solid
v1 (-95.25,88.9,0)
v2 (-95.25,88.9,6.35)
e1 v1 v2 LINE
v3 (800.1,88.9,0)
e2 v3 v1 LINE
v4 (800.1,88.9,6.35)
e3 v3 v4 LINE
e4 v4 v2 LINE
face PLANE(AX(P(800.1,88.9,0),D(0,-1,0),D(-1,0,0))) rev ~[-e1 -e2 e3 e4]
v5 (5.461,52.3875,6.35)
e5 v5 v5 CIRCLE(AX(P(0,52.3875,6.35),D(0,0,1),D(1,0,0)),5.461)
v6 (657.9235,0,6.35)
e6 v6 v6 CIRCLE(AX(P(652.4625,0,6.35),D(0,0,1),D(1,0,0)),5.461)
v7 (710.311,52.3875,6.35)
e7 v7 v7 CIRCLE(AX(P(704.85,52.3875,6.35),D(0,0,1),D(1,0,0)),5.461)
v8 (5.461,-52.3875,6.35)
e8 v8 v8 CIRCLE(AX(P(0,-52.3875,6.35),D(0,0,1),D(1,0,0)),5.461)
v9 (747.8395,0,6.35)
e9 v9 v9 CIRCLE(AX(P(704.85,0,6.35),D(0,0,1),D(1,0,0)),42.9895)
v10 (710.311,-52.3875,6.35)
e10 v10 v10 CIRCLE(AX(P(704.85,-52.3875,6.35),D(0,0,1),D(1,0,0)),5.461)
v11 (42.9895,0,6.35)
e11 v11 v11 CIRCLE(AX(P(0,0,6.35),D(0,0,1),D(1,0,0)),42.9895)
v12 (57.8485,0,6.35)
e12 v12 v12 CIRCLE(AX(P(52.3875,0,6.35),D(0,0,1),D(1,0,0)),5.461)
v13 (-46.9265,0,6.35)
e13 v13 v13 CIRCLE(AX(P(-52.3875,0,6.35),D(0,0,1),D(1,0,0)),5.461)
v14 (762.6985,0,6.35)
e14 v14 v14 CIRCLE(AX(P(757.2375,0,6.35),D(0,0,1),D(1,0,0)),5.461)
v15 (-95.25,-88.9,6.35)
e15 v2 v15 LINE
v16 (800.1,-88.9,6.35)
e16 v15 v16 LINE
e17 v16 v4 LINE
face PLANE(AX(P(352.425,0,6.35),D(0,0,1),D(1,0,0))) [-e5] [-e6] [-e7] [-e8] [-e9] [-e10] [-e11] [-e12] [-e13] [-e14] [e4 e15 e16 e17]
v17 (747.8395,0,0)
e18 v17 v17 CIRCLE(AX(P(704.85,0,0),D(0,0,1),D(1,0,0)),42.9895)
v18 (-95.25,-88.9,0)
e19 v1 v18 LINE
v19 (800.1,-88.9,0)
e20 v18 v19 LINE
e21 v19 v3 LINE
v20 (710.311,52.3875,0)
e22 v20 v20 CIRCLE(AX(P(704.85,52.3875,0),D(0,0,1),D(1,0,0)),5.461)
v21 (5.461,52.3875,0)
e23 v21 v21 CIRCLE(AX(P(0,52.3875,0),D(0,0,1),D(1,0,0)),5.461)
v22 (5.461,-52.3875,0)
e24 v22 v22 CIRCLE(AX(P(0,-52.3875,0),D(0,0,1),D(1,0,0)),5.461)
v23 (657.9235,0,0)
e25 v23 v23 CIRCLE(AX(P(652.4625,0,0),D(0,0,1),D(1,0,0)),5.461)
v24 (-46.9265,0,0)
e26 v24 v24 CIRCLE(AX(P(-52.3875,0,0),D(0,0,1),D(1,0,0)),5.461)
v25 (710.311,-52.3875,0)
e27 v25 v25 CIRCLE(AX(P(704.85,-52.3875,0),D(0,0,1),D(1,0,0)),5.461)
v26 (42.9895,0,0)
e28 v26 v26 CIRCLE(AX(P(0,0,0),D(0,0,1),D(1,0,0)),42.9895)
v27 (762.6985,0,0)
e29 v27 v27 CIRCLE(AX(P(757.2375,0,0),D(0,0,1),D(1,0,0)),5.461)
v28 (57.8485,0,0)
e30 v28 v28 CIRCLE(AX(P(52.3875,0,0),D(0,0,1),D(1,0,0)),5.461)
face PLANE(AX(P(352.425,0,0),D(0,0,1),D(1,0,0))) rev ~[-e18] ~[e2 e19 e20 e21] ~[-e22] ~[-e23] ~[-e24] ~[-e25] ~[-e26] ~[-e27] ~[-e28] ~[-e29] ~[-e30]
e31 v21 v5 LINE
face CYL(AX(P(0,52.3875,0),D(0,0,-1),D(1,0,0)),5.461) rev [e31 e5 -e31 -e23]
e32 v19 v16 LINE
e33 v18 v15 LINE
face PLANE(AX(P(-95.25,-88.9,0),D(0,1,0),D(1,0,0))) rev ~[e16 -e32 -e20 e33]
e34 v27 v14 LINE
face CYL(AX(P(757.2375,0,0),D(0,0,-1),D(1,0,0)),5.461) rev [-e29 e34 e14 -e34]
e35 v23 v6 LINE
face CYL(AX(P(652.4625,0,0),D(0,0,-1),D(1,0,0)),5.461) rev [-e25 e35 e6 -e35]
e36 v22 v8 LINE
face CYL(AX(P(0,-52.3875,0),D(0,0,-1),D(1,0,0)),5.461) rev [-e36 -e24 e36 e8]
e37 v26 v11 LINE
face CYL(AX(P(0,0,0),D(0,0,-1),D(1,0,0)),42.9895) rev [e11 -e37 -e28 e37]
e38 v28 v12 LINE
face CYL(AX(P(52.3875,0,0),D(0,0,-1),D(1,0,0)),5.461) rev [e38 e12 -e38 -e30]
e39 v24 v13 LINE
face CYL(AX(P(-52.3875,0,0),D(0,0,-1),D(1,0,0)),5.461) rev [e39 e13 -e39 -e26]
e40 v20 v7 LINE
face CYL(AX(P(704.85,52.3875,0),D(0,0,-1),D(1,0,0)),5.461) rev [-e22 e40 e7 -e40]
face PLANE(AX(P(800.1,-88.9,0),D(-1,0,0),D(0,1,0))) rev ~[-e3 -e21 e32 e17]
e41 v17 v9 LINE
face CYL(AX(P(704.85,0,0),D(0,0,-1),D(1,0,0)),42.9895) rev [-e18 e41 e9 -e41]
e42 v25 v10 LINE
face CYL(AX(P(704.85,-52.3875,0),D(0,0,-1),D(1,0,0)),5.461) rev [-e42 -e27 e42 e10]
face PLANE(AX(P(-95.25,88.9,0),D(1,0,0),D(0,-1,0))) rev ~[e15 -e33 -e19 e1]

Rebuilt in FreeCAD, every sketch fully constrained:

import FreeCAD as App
import Part
import Sketcher
Q = App.Units.Quantity

doc = App.newDocument("Part")
params = doc.addObject("Spreadsheet::Sheet", "Params")
for row, (alias, value) in enumerate([
    ("sketch1_diameter", "0.43 in"),
    ("sketch1_height", "7 in"),
    ("sketch1_diameter2", "3.385 in"),
    ("sketch1_width", "35.25 in"),
    ("pad1_length", "0.25 in"),
], start=1):
    params.set(f"A{row}", alias)
    params.set(f"B{row}", "=" + value)
    params.setAlias(f"B{row}", alias)

body = doc.addObject("PartDesign::Body", "Body")

sketch1 = body.newObject("Sketcher::SketchObject", "Sketch")
sketch1.AttachmentSupport = (doc.getObject("XY_Plane"), [""])
sketch1.MapMode = "FlatFace"
sketch1.addGeometry([
    Part.LineSegment(App.Vector(-95, 89, 0), App.Vector(-95, -89, 0)),
    Part.LineSegment(App.Vector(-95, -89, 0), App.Vector(800, -89, 0)),
    Part.LineSegment(App.Vector(800, -89, 0), App.Vector(800, 89, 0)),
    Part.LineSegment(App.Vector(800, 89, 0), App.Vector(-95, 89, 0)),
    Part.Circle(App.Vector(0, -52, 0), App.Vector(0, 0, 1), 5),
    Part.Circle(App.Vector(705, -52, 0), App.Vector(0, 0, 1), 5),
    Part.Circle(App.Vector(-52, 0, 0), App.Vector(0, 0, 1), 5),
    Part.Circle(App.Vector(0, 0, 0), App.Vector(0, 0, 1), 43),
    Part.Circle(App.Vector(52, 0, 0), App.Vector(0, 0, 1), 5),
    Part.Circle(App.Vector(0, 52, 0), App.Vector(0, 0, 1), 5),
    Part.Circle(App.Vector(652, 0, 0), App.Vector(0, 0, 1), 5),
    Part.Circle(App.Vector(705, 0, 0), App.Vector(0, 0, 1), 43),
    Part.Circle(App.Vector(757, 0, 0), App.Vector(0, 0, 1), 5),
    Part.Circle(App.Vector(705, 52, 0), App.Vector(0, 0, 1), 5),
], False)
sketch1.addConstraint([
    Sketcher.Constraint("Coincident", 0, 2, 1, 1),
    Sketcher.Constraint("Coincident", 1, 2, 2, 1),
    Sketcher.Constraint("Coincident", 2, 2, 3, 1),
    Sketcher.Constraint("Coincident", 3, 2, 0, 1),
    Sketcher.Constraint("Vertical", 0),
    Sketcher.Constraint("Horizontal", 1),
    Sketcher.Constraint("Vertical", 2),
    Sketcher.Constraint("Horizontal", 3),
    Sketcher.Constraint("Coincident", 7, 3, -1, 1),
    Sketcher.Constraint("Equal", 4, 5),
    Sketcher.Constraint("Equal", 5, 6),
    Sketcher.Constraint("Equal", 6, 8),
    Sketcher.Constraint("Equal", 8, 9),
    Sketcher.Constraint("Equal", 9, 10),
    Sketcher.Constraint("Equal", 7, 11),
    Sketcher.Constraint("Equal", 10, 12),
    Sketcher.Constraint("Equal", 12, 13),
    Sketcher.Constraint("Symmetric", 6, 3, 8, 3, -1, 1),
    Sketcher.Constraint("Symmetric", 4, 3, 9, 3, -1, 1),
    Sketcher.Constraint("Symmetric", 5, 3, 13, 3, -1),
    Sketcher.Constraint("PointOnObject", 4, 3, -2),
    Sketcher.Constraint("PointOnObject", 6, 3, -1),
    Sketcher.Constraint("PointOnObject", 10, 3, -1),
    Sketcher.Constraint("PointOnObject", 11, 3, -1),
    Sketcher.Constraint("PointOnObject", 12, 3, -1),
    Sketcher.Constraint("Horizontal", 4, 3, 5, 3),
    Sketcher.Constraint("Vertical", 5, 3, 11, 3),
    Sketcher.Constraint("Diameter", 4, Q("0.43 in")),
    Sketcher.Constraint("DistanceY", 0, 2, 0, 1, Q("7 in")),
    Sketcher.Constraint("Diameter", 7, Q("3.385 in")),
    Sketcher.Constraint("DistanceX", 1, 1, 1, 2, Q("35.25 in")),
    Sketcher.Constraint("DistanceY", 0, 2, -1, 1, Q("3.5 in")),
    Sketcher.Constraint("DistanceX", -1, 1, 1, 2, Q("31.5 in")),
    Sketcher.Constraint("DistanceX", -1, 1, 5, 3, Q("27.75 in")),
    Sketcher.Constraint("DistanceX", 8, 3, 12, 3, Q("27.75 in")),
    Sketcher.Constraint("DistanceY", 4, 3, -1, 1, Q("2.0625 in")),
    Sketcher.Constraint("DistanceX", 6, 3, -1, 1, Q("2.0625 in")),
    Sketcher.Constraint("DistanceX", -1, 1, 10, 3, Q("25.6875 in")),
])
sketch1.setExpression("Constraints[27]", "Params.sketch1_diameter")
sketch1.setExpression("Constraints[28]", "Params.sketch1_height")
sketch1.setExpression("Constraints[29]", "Params.sketch1_diameter2")
sketch1.setExpression("Constraints[30]", "Params.sketch1_width")
pad1 = body.newObject("PartDesign::Pad", "Pad")
pad1.Profile = sketch1
pad1.setExpression("Length", "Params.pad1_length")

doc.recompute()
